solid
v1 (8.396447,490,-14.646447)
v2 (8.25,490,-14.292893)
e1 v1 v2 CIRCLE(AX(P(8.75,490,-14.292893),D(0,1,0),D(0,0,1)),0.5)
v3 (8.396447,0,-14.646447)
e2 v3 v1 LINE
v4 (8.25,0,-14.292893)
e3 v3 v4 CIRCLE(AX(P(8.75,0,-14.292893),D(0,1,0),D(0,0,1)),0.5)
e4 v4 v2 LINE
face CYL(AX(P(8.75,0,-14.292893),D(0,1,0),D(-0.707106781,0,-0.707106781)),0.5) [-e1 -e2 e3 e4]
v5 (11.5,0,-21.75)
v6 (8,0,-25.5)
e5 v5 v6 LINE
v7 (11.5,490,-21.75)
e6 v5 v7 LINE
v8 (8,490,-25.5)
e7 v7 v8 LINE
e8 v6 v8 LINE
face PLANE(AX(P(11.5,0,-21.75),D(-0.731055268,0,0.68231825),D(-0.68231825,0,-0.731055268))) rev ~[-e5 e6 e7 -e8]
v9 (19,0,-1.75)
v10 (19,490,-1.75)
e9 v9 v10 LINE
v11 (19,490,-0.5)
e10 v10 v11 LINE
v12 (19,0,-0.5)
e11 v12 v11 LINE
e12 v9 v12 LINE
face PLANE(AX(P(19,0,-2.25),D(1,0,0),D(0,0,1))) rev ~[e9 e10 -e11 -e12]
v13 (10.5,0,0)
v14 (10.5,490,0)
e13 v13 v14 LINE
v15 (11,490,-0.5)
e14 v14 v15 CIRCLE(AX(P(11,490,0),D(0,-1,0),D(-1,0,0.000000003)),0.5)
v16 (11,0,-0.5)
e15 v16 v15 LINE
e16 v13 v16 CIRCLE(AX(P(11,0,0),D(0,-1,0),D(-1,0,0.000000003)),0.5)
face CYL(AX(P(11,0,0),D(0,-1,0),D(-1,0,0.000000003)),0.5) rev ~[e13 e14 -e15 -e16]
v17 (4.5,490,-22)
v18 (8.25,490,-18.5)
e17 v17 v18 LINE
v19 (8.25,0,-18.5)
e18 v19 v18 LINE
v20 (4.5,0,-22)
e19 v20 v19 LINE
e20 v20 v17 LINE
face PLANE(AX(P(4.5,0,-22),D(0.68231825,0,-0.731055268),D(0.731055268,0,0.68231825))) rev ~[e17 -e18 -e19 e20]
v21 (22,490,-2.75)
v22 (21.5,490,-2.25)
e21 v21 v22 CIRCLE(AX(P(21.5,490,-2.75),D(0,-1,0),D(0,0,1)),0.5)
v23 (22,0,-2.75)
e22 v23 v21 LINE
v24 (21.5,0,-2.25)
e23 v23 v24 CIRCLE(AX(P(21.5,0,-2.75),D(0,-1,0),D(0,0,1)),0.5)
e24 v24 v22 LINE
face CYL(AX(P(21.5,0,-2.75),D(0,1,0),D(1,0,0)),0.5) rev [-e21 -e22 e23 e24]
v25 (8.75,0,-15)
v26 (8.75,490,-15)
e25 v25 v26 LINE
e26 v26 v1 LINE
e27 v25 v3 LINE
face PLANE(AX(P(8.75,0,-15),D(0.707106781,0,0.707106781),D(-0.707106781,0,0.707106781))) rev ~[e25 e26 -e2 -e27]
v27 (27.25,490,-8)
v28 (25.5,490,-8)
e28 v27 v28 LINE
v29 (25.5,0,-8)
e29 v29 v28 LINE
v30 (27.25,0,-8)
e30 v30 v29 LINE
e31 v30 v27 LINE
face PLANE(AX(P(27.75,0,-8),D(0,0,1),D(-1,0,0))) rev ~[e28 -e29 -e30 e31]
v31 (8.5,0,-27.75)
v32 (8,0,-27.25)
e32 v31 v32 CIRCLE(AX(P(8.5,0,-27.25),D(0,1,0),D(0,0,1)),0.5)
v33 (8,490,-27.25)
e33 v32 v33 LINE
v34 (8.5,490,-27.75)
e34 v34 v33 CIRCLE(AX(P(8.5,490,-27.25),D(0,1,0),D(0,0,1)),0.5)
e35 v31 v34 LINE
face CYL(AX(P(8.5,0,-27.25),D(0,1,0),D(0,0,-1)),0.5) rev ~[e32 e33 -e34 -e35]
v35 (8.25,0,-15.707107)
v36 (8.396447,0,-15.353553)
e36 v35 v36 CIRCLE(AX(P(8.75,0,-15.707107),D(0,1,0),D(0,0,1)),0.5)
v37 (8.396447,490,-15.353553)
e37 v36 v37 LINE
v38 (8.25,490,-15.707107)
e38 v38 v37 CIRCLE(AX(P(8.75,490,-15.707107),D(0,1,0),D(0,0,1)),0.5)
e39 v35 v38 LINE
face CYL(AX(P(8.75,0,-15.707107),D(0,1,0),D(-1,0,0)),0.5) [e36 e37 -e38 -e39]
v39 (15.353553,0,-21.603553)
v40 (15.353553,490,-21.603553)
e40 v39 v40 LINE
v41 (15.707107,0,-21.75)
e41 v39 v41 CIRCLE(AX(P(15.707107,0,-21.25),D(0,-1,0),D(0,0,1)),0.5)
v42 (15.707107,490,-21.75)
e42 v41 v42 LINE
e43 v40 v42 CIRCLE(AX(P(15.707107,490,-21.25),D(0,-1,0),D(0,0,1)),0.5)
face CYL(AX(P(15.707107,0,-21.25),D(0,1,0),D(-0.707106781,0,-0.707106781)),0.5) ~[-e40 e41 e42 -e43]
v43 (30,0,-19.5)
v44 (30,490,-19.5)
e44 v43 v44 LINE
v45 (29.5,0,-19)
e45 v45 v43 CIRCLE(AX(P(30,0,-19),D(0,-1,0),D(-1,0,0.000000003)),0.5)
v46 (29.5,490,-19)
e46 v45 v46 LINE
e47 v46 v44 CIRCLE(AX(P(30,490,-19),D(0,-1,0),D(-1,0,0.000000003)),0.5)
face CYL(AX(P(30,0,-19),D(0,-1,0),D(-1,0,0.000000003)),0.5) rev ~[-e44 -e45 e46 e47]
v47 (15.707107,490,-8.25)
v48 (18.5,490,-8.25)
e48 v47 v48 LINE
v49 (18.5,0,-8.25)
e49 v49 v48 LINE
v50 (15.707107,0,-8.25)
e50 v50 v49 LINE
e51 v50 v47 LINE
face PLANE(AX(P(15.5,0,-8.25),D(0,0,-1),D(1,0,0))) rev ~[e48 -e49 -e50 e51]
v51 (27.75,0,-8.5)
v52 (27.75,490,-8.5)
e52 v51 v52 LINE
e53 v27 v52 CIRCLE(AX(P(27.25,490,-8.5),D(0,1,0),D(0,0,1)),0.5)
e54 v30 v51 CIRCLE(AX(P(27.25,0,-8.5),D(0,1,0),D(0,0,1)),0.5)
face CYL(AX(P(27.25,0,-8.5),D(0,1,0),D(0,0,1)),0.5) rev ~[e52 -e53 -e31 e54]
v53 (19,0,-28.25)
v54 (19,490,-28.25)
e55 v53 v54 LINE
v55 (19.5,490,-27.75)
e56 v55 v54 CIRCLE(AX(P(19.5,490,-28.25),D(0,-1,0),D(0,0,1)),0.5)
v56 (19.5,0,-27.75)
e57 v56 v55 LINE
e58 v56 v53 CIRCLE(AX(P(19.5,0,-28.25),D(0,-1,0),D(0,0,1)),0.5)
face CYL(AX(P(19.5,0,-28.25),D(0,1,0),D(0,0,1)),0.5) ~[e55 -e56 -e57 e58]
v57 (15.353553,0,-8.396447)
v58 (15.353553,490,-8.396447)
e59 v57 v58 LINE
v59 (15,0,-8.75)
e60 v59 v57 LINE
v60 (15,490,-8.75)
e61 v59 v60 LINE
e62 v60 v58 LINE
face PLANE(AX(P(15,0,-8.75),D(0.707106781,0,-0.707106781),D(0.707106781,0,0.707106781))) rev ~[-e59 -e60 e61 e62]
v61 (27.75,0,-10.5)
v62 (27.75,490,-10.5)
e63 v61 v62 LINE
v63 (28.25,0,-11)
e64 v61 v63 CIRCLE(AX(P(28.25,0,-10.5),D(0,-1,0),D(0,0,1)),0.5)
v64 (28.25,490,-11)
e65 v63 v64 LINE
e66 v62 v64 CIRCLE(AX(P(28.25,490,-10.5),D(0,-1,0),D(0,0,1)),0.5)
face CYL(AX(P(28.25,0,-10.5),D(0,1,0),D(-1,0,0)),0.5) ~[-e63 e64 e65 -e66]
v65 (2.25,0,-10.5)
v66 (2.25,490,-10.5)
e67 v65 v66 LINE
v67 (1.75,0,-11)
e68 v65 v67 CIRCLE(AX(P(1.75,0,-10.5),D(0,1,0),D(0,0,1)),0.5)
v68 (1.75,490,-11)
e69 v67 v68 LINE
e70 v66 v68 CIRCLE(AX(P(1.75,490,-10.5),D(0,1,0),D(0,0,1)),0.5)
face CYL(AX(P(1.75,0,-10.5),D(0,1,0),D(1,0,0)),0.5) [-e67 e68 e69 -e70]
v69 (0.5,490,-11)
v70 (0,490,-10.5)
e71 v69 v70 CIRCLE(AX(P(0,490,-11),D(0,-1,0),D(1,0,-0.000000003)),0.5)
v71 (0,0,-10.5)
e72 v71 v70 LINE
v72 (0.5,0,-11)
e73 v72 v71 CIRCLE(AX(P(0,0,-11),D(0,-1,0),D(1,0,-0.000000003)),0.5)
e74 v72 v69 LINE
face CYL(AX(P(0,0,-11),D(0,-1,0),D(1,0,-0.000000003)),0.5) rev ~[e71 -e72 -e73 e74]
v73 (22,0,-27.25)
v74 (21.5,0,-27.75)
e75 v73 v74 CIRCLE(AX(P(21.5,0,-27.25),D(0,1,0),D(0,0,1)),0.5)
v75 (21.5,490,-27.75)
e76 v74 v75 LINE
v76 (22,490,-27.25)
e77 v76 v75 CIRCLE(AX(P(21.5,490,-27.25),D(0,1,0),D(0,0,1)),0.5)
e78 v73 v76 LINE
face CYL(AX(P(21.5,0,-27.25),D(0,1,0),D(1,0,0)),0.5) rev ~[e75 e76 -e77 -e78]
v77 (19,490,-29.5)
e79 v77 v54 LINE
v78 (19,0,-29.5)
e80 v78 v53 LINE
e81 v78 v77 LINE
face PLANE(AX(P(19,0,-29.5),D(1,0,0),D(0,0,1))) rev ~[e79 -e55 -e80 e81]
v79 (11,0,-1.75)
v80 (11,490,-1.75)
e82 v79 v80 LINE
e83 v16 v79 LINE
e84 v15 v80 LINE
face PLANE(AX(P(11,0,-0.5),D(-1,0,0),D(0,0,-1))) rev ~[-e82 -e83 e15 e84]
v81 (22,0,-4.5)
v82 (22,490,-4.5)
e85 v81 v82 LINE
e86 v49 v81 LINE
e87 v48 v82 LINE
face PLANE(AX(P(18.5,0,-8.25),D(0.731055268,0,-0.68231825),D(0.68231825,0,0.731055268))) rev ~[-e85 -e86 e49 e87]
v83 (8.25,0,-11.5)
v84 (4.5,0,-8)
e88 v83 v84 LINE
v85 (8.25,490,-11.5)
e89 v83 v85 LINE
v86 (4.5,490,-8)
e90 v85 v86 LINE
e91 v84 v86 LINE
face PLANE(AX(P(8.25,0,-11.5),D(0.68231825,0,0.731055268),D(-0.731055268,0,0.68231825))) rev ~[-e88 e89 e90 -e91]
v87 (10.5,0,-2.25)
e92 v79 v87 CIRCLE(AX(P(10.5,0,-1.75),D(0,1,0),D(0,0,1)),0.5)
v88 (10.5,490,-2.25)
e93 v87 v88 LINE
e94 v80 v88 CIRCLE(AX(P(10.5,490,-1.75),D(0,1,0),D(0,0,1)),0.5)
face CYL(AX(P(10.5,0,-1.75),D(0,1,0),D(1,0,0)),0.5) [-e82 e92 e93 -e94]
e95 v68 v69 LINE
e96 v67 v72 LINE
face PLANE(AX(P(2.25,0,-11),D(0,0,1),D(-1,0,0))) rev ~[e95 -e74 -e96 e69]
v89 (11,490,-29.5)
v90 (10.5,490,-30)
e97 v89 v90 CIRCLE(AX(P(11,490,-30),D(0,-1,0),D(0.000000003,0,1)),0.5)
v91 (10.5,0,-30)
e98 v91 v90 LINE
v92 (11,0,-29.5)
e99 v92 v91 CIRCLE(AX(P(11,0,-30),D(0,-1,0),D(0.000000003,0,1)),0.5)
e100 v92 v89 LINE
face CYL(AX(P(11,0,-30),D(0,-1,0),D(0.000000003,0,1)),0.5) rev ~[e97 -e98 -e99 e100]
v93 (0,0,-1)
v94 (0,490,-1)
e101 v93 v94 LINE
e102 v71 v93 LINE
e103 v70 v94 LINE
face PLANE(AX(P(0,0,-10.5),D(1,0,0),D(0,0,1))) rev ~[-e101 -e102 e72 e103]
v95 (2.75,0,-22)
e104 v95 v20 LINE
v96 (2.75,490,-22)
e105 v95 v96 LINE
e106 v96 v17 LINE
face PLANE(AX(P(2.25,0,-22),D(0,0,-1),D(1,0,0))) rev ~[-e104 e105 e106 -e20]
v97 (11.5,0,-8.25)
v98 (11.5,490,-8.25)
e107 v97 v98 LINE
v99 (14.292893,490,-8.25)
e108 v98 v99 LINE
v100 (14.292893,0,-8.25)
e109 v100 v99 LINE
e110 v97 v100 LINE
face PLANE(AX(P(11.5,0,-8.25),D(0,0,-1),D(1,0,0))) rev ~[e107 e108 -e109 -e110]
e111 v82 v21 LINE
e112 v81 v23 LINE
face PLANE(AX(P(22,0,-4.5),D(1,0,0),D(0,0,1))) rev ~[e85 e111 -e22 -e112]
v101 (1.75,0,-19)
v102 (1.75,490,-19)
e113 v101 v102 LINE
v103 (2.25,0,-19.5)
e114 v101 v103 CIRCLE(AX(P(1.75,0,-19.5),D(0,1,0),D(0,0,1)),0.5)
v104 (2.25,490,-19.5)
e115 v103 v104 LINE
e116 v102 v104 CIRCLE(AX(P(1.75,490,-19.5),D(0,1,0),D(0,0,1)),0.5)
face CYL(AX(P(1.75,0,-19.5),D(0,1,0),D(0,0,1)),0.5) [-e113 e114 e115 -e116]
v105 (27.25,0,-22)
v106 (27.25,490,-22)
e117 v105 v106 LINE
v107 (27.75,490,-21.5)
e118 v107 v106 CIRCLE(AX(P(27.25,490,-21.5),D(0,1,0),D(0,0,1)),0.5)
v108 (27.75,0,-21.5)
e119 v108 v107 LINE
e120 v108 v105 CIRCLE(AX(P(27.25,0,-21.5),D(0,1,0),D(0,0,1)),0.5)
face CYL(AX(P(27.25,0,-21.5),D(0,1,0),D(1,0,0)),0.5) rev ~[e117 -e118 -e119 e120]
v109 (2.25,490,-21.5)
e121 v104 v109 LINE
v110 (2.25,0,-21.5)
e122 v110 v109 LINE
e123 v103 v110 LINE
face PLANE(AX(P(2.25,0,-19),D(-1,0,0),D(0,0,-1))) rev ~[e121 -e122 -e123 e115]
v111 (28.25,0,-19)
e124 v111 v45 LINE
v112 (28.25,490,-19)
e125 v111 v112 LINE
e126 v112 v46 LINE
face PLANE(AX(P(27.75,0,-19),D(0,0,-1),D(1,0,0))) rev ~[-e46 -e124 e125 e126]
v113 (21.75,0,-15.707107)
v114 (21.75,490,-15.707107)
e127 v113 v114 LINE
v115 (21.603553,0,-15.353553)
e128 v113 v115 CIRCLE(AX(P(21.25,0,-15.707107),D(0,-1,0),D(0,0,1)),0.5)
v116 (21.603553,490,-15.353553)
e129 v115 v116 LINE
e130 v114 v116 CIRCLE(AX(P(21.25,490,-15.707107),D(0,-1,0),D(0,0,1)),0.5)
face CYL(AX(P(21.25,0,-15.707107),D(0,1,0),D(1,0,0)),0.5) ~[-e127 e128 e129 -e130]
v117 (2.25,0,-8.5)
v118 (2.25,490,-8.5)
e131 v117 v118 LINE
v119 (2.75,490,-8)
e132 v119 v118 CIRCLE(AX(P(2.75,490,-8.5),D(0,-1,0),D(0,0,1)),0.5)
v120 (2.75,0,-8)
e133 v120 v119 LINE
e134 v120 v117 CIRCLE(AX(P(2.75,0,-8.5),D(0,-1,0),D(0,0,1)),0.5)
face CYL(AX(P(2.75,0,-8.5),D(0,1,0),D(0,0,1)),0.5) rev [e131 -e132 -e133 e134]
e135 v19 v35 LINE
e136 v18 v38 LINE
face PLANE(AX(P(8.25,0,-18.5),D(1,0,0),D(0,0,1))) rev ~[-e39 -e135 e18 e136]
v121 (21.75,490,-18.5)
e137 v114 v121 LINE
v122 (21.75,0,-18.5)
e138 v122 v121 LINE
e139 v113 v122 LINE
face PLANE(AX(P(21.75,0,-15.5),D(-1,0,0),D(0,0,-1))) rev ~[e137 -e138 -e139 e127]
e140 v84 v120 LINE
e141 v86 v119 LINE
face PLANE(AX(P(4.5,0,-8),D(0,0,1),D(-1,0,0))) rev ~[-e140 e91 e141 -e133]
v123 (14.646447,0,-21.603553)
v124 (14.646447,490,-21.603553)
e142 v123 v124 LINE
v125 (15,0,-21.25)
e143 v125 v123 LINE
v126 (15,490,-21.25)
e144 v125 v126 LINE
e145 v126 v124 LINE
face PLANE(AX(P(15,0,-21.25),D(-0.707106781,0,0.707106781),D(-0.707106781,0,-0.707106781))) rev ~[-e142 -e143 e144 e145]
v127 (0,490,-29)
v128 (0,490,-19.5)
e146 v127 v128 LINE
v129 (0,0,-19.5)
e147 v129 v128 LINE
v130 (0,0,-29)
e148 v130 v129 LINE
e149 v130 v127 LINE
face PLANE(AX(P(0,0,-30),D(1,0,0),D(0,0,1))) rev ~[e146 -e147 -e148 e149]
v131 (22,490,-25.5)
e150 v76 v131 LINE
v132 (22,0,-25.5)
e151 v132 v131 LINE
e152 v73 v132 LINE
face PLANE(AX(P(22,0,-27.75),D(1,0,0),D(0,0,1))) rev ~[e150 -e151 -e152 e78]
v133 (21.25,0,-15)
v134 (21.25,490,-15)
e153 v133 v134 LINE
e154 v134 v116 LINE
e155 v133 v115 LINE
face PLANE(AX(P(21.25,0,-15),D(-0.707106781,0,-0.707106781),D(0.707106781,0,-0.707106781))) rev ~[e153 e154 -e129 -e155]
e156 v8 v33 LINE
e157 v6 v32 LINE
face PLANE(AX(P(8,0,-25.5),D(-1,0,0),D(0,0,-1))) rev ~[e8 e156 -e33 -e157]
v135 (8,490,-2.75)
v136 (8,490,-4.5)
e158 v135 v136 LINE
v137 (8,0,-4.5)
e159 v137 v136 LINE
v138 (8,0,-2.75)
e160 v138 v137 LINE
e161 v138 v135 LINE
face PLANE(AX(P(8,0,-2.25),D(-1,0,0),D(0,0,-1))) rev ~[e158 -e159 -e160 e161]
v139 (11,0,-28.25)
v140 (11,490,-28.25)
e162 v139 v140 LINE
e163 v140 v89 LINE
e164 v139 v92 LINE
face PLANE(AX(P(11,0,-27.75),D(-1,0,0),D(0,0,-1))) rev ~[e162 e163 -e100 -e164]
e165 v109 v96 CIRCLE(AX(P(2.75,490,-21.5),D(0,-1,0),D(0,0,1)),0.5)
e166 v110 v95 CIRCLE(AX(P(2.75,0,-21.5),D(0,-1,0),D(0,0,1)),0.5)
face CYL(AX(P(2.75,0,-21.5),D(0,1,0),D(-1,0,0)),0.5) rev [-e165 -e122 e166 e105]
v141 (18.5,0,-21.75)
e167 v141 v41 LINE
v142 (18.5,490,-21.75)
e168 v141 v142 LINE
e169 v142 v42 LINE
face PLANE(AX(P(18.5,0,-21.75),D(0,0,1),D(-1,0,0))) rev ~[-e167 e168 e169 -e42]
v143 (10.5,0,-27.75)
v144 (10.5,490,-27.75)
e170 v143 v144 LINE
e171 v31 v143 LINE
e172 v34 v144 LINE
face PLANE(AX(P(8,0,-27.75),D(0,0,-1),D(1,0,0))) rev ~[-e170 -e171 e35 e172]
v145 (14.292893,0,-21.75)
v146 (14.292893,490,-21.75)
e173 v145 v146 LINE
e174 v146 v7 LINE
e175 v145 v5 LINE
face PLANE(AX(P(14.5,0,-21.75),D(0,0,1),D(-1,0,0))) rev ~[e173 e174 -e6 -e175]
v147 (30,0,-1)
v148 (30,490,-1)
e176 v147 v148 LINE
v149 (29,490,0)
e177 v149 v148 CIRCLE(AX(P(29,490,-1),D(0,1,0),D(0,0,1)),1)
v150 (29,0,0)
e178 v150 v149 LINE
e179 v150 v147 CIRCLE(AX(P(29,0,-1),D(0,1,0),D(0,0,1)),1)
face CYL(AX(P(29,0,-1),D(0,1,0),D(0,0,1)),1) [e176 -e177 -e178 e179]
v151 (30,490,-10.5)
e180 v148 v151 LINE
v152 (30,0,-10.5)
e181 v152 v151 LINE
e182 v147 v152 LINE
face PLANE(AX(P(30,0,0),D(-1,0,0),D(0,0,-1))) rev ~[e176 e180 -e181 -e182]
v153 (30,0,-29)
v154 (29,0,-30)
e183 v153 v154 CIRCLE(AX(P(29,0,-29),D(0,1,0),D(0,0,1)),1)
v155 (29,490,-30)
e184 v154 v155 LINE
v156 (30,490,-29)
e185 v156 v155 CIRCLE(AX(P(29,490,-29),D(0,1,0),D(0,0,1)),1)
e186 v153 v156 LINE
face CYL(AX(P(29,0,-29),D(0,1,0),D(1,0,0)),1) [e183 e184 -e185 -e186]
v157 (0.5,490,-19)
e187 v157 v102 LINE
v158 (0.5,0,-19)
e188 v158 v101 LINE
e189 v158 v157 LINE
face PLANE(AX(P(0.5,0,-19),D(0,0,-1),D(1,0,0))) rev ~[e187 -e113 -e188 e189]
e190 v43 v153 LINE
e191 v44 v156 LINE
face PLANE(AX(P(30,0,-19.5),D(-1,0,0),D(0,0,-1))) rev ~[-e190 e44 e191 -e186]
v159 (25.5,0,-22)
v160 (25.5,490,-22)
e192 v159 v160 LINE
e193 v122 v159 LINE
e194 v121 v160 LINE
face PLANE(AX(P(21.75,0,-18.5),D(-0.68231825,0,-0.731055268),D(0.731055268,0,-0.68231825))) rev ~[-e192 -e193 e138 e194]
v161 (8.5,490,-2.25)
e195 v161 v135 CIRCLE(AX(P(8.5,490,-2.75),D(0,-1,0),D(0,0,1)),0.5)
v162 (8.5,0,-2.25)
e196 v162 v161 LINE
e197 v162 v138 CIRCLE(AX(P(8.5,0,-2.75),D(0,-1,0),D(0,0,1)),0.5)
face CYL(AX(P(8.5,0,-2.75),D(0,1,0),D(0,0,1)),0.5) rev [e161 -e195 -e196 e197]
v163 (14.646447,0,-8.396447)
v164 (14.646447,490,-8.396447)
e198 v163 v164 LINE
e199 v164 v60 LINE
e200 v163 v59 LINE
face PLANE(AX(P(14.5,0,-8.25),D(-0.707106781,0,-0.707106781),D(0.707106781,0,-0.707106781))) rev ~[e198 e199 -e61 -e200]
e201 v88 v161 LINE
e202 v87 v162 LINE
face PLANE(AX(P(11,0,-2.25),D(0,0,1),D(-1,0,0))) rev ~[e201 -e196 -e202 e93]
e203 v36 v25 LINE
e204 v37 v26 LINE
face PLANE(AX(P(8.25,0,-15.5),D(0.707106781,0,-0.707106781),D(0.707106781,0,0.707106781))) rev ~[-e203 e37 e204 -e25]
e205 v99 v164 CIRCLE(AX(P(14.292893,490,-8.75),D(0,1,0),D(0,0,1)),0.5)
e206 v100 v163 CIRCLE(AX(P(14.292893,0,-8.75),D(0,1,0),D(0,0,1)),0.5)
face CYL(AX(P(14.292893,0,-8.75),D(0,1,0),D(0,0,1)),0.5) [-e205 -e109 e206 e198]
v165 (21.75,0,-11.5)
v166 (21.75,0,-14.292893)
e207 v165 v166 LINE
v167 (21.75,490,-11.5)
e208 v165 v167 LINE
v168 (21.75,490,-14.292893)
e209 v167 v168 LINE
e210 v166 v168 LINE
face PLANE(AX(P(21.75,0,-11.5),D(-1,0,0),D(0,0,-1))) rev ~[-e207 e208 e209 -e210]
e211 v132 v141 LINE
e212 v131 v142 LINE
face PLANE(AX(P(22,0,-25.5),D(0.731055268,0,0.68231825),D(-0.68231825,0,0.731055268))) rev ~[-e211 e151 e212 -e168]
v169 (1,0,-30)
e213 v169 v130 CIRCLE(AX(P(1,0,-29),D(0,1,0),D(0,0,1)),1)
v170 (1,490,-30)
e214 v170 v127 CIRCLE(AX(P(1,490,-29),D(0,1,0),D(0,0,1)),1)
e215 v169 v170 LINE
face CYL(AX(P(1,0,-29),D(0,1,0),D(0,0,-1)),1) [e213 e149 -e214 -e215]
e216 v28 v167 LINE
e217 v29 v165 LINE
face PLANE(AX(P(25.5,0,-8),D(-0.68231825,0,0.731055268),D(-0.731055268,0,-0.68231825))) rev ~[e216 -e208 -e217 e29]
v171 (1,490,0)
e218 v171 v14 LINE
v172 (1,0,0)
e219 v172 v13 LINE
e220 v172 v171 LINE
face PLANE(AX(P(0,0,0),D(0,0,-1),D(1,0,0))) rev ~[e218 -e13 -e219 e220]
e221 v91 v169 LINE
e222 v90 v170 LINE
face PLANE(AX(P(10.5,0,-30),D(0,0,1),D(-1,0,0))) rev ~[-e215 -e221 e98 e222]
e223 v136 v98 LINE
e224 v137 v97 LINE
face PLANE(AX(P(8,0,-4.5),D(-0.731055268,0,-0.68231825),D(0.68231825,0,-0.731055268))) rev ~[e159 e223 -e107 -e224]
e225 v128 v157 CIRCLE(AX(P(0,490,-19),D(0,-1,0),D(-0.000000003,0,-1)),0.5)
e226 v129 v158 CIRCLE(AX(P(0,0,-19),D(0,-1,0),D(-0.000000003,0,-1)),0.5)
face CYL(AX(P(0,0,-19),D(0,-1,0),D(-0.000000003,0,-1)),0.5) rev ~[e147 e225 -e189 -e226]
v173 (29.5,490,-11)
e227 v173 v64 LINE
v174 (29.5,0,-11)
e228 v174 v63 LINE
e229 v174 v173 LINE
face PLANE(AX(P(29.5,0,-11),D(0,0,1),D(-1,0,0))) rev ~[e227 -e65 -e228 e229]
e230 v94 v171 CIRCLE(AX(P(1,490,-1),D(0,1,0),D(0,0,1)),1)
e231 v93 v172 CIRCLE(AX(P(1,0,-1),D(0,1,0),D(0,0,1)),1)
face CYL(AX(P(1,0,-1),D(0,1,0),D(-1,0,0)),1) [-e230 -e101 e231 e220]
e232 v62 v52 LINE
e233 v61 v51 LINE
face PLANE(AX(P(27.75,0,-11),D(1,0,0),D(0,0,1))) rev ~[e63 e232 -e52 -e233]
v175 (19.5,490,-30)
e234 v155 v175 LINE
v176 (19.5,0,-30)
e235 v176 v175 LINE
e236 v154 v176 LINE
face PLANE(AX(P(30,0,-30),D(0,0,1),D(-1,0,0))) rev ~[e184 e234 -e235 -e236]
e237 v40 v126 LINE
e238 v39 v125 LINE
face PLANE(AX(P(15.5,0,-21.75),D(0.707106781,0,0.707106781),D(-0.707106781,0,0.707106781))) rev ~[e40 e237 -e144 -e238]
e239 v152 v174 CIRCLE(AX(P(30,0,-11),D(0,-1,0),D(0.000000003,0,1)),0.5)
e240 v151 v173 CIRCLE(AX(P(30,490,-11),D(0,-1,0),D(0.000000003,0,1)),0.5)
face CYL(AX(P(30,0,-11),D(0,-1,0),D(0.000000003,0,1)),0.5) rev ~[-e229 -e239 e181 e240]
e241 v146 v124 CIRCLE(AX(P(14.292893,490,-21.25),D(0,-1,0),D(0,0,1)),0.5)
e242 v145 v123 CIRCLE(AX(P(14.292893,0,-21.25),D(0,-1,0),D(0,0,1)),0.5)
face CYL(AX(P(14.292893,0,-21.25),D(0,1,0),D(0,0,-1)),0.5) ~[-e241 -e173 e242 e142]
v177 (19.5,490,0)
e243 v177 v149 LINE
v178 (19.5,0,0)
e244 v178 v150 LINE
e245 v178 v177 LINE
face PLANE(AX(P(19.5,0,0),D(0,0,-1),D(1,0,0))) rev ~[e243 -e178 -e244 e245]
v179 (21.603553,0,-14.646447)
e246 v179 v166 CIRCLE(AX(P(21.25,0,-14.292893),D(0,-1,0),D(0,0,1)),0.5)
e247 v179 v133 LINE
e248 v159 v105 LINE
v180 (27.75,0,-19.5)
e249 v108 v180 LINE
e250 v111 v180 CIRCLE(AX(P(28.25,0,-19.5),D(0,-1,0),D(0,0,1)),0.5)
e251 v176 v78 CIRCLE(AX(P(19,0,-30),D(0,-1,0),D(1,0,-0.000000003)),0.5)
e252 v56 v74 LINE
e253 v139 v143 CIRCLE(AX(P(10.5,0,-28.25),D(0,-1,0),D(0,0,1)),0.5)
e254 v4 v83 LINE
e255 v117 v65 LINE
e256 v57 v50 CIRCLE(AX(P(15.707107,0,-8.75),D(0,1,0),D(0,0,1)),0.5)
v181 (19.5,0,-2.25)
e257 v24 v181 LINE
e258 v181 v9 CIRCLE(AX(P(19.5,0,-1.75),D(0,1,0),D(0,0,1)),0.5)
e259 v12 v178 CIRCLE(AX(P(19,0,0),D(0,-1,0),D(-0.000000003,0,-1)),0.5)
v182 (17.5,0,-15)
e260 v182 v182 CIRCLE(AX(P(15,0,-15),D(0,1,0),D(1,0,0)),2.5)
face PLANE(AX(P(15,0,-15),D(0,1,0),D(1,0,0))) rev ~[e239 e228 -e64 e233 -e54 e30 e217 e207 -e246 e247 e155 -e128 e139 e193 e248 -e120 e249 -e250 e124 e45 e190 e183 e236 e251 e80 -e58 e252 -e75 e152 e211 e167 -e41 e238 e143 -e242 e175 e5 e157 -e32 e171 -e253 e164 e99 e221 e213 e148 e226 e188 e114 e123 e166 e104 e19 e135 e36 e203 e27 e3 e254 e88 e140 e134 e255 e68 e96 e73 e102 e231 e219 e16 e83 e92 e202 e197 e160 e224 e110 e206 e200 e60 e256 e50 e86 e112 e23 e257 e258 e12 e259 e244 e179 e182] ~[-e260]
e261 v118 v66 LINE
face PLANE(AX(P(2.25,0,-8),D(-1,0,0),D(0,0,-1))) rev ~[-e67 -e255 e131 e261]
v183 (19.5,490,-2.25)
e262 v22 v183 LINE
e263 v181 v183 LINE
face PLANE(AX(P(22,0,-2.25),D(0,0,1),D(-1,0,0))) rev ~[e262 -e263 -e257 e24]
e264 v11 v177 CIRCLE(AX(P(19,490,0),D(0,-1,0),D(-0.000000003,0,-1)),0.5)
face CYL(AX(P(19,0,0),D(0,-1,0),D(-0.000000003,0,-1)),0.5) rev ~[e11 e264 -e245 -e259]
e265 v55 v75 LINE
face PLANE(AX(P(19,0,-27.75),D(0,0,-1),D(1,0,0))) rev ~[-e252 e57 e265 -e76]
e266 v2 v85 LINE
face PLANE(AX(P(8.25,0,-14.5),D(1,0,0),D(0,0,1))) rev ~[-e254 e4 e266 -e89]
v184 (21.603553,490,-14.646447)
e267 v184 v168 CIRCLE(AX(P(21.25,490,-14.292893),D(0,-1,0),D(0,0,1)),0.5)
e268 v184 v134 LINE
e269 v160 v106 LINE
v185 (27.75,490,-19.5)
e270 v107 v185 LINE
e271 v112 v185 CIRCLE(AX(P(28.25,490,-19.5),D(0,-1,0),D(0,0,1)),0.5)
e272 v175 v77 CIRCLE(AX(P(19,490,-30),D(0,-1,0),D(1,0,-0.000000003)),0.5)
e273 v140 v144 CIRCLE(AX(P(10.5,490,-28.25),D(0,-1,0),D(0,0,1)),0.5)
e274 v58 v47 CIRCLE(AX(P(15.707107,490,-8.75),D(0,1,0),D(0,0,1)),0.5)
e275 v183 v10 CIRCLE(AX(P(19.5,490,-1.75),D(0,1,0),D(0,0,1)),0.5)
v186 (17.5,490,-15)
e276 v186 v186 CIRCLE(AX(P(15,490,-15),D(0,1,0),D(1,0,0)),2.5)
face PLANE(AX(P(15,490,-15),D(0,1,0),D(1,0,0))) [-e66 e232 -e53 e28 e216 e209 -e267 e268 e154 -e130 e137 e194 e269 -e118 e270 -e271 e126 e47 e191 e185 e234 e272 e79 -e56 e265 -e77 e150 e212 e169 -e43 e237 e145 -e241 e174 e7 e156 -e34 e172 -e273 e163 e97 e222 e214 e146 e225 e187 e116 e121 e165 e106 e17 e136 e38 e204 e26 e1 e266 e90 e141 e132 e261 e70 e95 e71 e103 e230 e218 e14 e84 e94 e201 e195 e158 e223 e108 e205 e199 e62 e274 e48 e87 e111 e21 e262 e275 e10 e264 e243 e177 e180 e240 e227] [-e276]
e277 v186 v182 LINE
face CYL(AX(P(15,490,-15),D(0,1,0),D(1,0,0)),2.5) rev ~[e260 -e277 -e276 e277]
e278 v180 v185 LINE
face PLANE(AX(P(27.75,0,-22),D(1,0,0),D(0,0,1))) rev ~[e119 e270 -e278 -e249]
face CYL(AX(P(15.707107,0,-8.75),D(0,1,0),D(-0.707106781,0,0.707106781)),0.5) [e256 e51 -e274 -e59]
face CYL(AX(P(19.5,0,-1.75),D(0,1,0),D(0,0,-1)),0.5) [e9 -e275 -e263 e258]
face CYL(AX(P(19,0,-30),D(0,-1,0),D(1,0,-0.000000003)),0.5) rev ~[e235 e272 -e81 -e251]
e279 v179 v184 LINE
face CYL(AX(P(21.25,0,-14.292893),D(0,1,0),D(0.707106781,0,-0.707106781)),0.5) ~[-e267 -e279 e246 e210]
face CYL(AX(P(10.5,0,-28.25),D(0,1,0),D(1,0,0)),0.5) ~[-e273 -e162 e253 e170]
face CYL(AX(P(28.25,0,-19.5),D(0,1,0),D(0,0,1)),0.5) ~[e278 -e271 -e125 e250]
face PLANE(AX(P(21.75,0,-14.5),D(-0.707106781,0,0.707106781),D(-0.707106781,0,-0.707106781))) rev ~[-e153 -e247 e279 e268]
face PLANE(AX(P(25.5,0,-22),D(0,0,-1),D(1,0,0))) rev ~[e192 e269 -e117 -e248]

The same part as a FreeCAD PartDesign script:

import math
import FreeCAD as App
import Part
import Sketcher
from FreeCAD import Vector


def edges_at(feature, points):
    """Names of the edges that pass closest to the given points."""
    edges = feature.Shape.Edges
    near = lambda p: min(range(len(edges)), key=lambda i: edges[i].distToShape(Part.Vertex(*p))[0])
    return sorted({f"Edge{near(p) + 1}" for p in points})

doc = App.newDocument("Part")
params = doc.addObject("Spreadsheet::Sheet", "Params")
for row, (alias, value) in enumerate([
    ("sketch1_radius", "0.5 mm"),
    ("sketch1_width", "3 mm"),
    ("sketch1_width2", "10.5 mm"),
    ("sketch1_width3", "1.75 mm"),
    ("sketch1_width4", "2.25 mm"),
    ("pad1_length", "490 mm"),
    ("fillet_radius", "1 mm"),
    ("sketch2_diameter", "5 mm"),
    ("fillet2_radius", "0.5 mm"),
], start=1):
    params.set(f"A{row}", alias)
    params.set(f"B{row}", "=" + value)
    params.setAlias(f"B{row}", alias)

body = doc.addObject("PartDesign::Body", "Body")

sketch1 = body.newObject("Sketcher::SketchObject", "Sketch")
sketch1.AttachmentSupport = (doc.getObject("XZ_Plane"), [""])
sketch1.MapMode = "FlatFace"
sketch1.addGeometry(Part.LineSegment(Vector(11, -27.75, 0), Vector(11, -29.5, 0)), False)
sketch1.addGeometry(Part.ArcOfCircle(Part.Circle(Vector(11, -30, 0), Vector(0, 0, 1), 0.5), math.radians(90), math.radians(180)), False)
sketch1.addGeometry(Part.LineSegment(Vector(10.5, -30, 0), Vector(0, -30, 0)), False)
sketch1.addGeometry(Part.LineSegment(Vector(0, -30, 0), Vector(0, -19.5, 0)), False)
sketch1.addGeometry(Part.ArcOfCircle(Part.Circle(Vector(0, -19, 0), Vector(0, 0, 1), 0.5), math.radians(-90), math.radians(0)), False)
sketch1.addGeometry(Part.LineSegment(Vector(0.5, -19, 0), Vector(2.25, -19, 0)), False)
sketch1.addGeometry(Part.LineSegment(Vector(2.25, -19, 0), Vector(2.25, -22, 0)), False)
sketch1.addGeometry(Part.LineSegment(Vector(2.25, -22, 0), Vector(4.5, -22, 0)), False)
sketch1.addGeometry(Part.LineSegment(Vector(4.5, -22, 0), Vector(8.25, -18.5, 0)), False)
sketch1.addGeometry(Part.LineSegment(Vector(8.25, -18.5, 0), Vector(8.25, -15.5, 0)), False)
sketch1.addGeometry(Part.LineSegment(Vector(8.25, -15.5, 0), Vector(8.75, -15, 0)), False)
sketch1.addGeometry(Part.LineSegment(Vector(8.75, -15, 0), Vector(8.25, -14.5, 0)), False)
sketch1.addGeometry(Part.LineSegment(Vector(8.25, -14.5, 0), Vector(8.25, -11.5, 0)), False)
sketch1.addGeometry(Part.LineSegment(Vector(8.25, -11.5, 0), Vector(4.5, -8, 0)), False)
sketch1.addGeometry(Part.LineSegment(Vector(4.5, -8, 0), Vector(2.25, -8, 0)), False)
sketch1.addGeometry(Part.LineSegment(Vector(2.25, -8, 0), Vector(2.25, -11, 0)), False)
sketch1.addGeometry(Part.LineSegment(Vector(2.25, -11, 0), Vector(0.5, -11, 0)), False)
sketch1.addGeometry(Part.ArcOfCircle(Part.Circle(Vector(0, -11, 0), Vector(0, 0, 1), 0.5), math.radians(0), math.radians(90)), False)
sketch1.addGeometry(Part.LineSegment(Vector(0, -10.5, 0), Vector(0, 0, 0)), False)
sketch1.addGeometry(Part.LineSegment(Vector(0, 0, 0), Vector(10.5, 0, 0)), False)
sketch1.addGeometry(Part.ArcOfCircle(Part.Circle(Vector(11, 0, 0), Vector(0, 0, 1), 0.5), math.radians(180), math.radians(270)), False)
sketch1.addGeometry(Part.LineSegment(Vector(11, -0.5, 0), Vector(11, -2.25, 0)), False)
sketch1.addGeometry(Part.LineSegment(Vector(11, -2.25, 0), Vector(8, -2.25, 0)), False)
sketch1.addGeometry(Part.LineSegment(Vector(8, -2.25, 0), Vector(8, -4.5, 0)), False)
sketch1.addGeometry(Part.LineSegment(Vector(8, -4.5, 0), Vector(11.5, -8.25, 0)), False)
sketch1.addGeometry(Part.LineSegment(Vector(11.5, -8.25, 0), Vector(14.5, -8.25, 0)), False)
sketch1.addGeometry(Part.LineSegment(Vector(14.5, -8.25, 0), Vector(15, -8.75, 0)), False)
sketch1.addGeometry(Part.LineSegment(Vector(15, -8.75, 0), Vector(15.5, -8.25, 0)), False)
sketch1.addGeometry(Part.LineSegment(Vector(15.5, -8.25, 0), Vector(18.5, -8.25, 0)), False)
sketch1.addGeometry(Part.LineSegment(Vector(18.5, -8.25, 0), Vector(22, -4.5, 0)), False)
sketch1.addGeometry(Part.LineSegment(Vector(22, -4.5, 0), Vector(22, -2.25, 0)), False)
sketch1.addGeometry(Part.LineSegment(Vector(22, -2.25, 0), Vector(19, -2.25, 0)), False)
sketch1.addGeometry(Part.LineSegment(Vector(19, -2.25, 0), Vector(19, -0.5, 0)), False)
sketch1.addGeometry(Part.ArcOfCircle(Part.Circle(Vector(19, 0, 0), Vector(0, 0, 1), 0.5), math.radians(-90), math.radians(0)), False)
sketch1.addGeometry(Part.LineSegment(Vector(19.5, 0, 0), Vector(30, 0, 0)), False)
sketch1.addGeometry(Part.LineSegment(Vector(30, 0, 0), Vector(30, -10.5, 0)), False)
sketch1.addGeometry(Part.ArcOfCircle(Part.Circle(Vector(30, -11, 0), Vector(0, 0, 1), 0.5), math.radians(90), math.radians(180)), False)
sketch1.addGeometry(Part.LineSegment(Vector(29.5, -11, 0), Vector(27.75, -11, 0)), False)
sketch1.addGeometry(Part.LineSegment(Vector(27.75, -11, 0), Vector(27.75, -8, 0)), False)
sketch1.addGeometry(Part.LineSegment(Vector(27.75, -8, 0), Vector(25.5, -8, 0)), False)
sketch1.addGeometry(Part.LineSegment(Vector(25.5, -8, 0), Vector(21.75, -11.5, 0)), False)
sketch1.addGeometry(Part.LineSegment(Vector(21.75, -11.5, 0), Vector(21.75, -14.5, 0)), False)
sketch1.addGeometry(Part.LineSegment(Vector(21.75, -14.5, 0), Vector(21.25, -15, 0)), False)
sketch1.addGeometry(Part.LineSegment(Vector(21.25, -15, 0), Vector(21.75, -15.5, 0)), False)
sketch1.addGeometry(Part.LineSegment(Vector(21.75, -15.5, 0), Vector(21.75, -18.5, 0)), False)
sketch1.addGeometry(Part.LineSegment(Vector(21.75, -18.5, 0), Vector(25.5, -22, 0)), False)
sketch1.addGeometry(Part.LineSegment(Vector(25.5, -22, 0), Vector(27.75, -22, 0)), False)
sketch1.addGeometry(Part.LineSegment(Vector(27.75, -22, 0), Vector(27.75, -19, 0)), False)
sketch1.addGeometry(Part.LineSegment(Vector(27.75, -19, 0), Vector(29.5, -19, 0)), False)
sketch1.addGeometry(Part.ArcOfCircle(Part.Circle(Vector(30, -19, 0), Vector(0, 0, 1), 0.5), math.radians(180), math.radians(270)), False)
sketch1.addGeometry(Part.LineSegment(Vector(30, -19.5, 0), Vector(30, -30, 0)), False)
sketch1.addGeometry(Part.LineSegment(Vector(30, -30, 0), Vector(19.5, -30, 0)), False)
sketch1.addGeometry(Part.ArcOfCircle(Part.Circle(Vector(19, -30, 0), Vector(0, 0, 1), 0.5), math.radians(0), math.radians(90)), False)
sketch1.addGeometry(Part.LineSegment(Vector(19, -29.5, 0), Vector(19, -27.75, 0)), False)
sketch1.addGeometry(Part.LineSegment(Vector(19, -27.75, 0), Vector(22, -27.75, 0)), False)
sketch1.addGeometry(Part.LineSegment(Vector(22, -27.75, 0), Vector(22, -25.5, 0)), False)
sketch1.addGeometry(Part.LineSegment(Vector(22, -25.5, 0), Vector(18.5, -21.75, 0)), False)
sketch1.addGeometry(Part.LineSegment(Vector(18.5, -21.75, 0), Vector(15.5, -21.75, 0)), False)
sketch1.addGeometry(Part.LineSegment(Vector(15.5, -21.75, 0), Vector(15, -21.25, 0)), False)
sketch1.addGeometry(Part.LineSegment(Vector(15, -21.25, 0), Vector(14.5, -21.75, 0)), False)
sketch1.addGeometry(Part.LineSegment(Vector(14.5, -21.75, 0), Vector(11.5, -21.75, 0)), False)
sketch1.addGeometry(Part.LineSegment(Vector(11.5, -21.75, 0), Vector(8, -25.5, 0)), False)
sketch1.addGeometry(Part.LineSegment(Vector(8, -25.5, 0), Vector(8, -27.75, 0)), False)
sketch1.addGeometry(Part.LineSegment(Vector(8, -27.75, 0), Vector(11, -27.75, 0)), False)
sketch1.addConstraint(Sketcher.Constraint("Coincident", 0, 2, 1, 1))
sketch1.addConstraint(Sketcher.Constraint("Coincident", 1, 2, 2, 1))
sketch1.addConstraint(Sketcher.Constraint("Coincident", 2, 2, 3, 1))
sketch1.addConstraint(Sketcher.Constraint("Coincident", 3, 2, 4, 1))
sketch1.addConstraint(Sketcher.Constraint("Coincident", 4, 2, 5, 1))
sketch1.addConstraint(Sketcher.Constraint("Coincident", 5, 2, 6, 1))
sketch1.addConstraint(Sketcher.Constraint("Coincident", 6, 2, 7, 1))
sketch1.addConstraint(Sketcher.Constraint("Coincident", 7, 2, 8, 1))
sketch1.addConstraint(Sketcher.Constraint("Coincident", 8, 2, 9, 1))
sketch1.addConstraint(Sketcher.Constraint("Coincident", 9, 2, 10, 1))
sketch1.addConstraint(Sketcher.Constraint("Coincident", 10, 2, 11, 1))
sketch1.addConstraint(Sketcher.Constraint("Coincident", 11, 2, 12, 1))
sketch1.addConstraint(Sketcher.Constraint("Coincident", 12, 2, 13, 1))
sketch1.addConstraint(Sketcher.Constraint("Coincident", 13, 2, 14, 1))
sketch1.addConstraint(Sketcher.Constraint("Coincident", 14, 2, 15, 1))
sketch1.addConstraint(Sketcher.Constraint("Coincident", 15, 2, 16, 1))
sketch1.addConstraint(Sketcher.Constraint("Coincident", 16, 2, 17, 1))
sketch1.addConstraint(Sketcher.Constraint("Coincident", 17, 2, 18, 1))
sketch1.addConstraint(Sketcher.Constraint("Coincident", 18, 2, 19, 1))
sketch1.addConstraint(Sketcher.Constraint("Coincident", 19, 2, 20, 1))
sketch1.addConstraint(Sketcher.Constraint("Coincident", 20, 2, 21, 1))
sketch1.addConstraint(Sketcher.Constraint("Coincident", 21, 2, 22, 1))
sketch1.addConstraint(Sketcher.Constraint("Coincident", 22, 2, 23, 1))
sketch1.addConstraint(Sketcher.Constraint("Coincident", 23, 2, 24, 1))
sketch1.addConstraint(Sketcher.Constraint("Coincident", 24, 2, 25, 1))
sketch1.addConstraint(Sketcher.Constraint("Coincident", 25, 2, 26, 1))
sketch1.addConstraint(Sketcher.Constraint("Coincident", 26, 2, 27, 1))
sketch1.addConstraint(Sketcher.Constraint("Coincident", 27, 2, 28, 1))
sketch1.addConstraint(Sketcher.Constraint("Coincident", 28, 2, 29, 1))
sketch1.addConstraint(Sketcher.Constraint("Coincident", 29, 2, 30, 1))
sketch1.addConstraint(Sketcher.Constraint("Coincident", 30, 2, 31, 1))
sketch1.addConstraint(Sketcher.Constraint("Coincident", 31, 2, 32, 1))
sketch1.addConstraint(Sketcher.Constraint("Coincident", 32, 2, 33, 1))
sketch1.addConstraint(Sketcher.Constraint("Coincident", 33, 2, 34, 1))
sketch1.addConstraint(Sketcher.Constraint("Coincident", 34, 2, 35, 1))
sketch1.addConstraint(Sketcher.Constraint("Coincident", 35, 2, 36, 1))
sketch1.addConstraint(Sketcher.Constraint("Coincident", 36, 2, 37, 1))
sketch1.addConstraint(Sketcher.Constraint("Coincident", 37, 2, 38, 1))
sketch1.addConstraint(Sketcher.Constraint("Coincident", 38, 2, 39, 1))
sketch1.addConstraint(Sketcher.Constraint("Coincident", 39, 2, 40, 1))
sketch1.addConstraint(Sketcher.Constraint("Coincident", 40, 2, 41, 1))
sketch1.addConstraint(Sketcher.Constraint("Coincident", 41, 2, 42, 1))
sketch1.addConstraint(Sketcher.Constraint("Coincident", 42, 2, 43, 1))
sketch1.addConstraint(Sketcher.Constraint("Coincident", 43, 2, 44, 1))
sketch1.addConstraint(Sketcher.Constraint("Coincident", 44, 2, 45, 1))
sketch1.addConstraint(Sketcher.Constraint("Coincident", 45, 2, 46, 1))
sketch1.addConstraint(Sketcher.Constraint("Coincident", 46, 2, 47, 1))
sketch1.addConstraint(Sketcher.Constraint("Coincident", 47, 2, 48, 1))
sketch1.addConstraint(Sketcher.Constraint("Coincident", 48, 2, 49, 1))
sketch1.addConstraint(Sketcher.Constraint("Coincident", 49, 2, 50, 1))
sketch1.addConstraint(Sketcher.Constraint("Coincident", 50, 2, 51, 1))
sketch1.addConstraint(Sketcher.Constraint("Coincident", 51, 2, 52, 1))
sketch1.addConstraint(Sketcher.Constraint("Coincident", 52, 2, 53, 1))
sketch1.addConstraint(Sketcher.Constraint("Coincident", 53, 2, 54, 1))
sketch1.addConstraint(Sketcher.Constraint("Coincident", 54, 2, 55, 1))
sketch1.addConstraint(Sketcher.Constraint("Coincident", 55, 2, 56, 1))
sketch1.addConstraint(Sketcher.Constraint("Coincident", 56, 2, 57, 1))
sketch1.addConstraint(Sketcher.Constraint("Coincident", 57, 2, 58, 1))
sketch1.addConstraint(Sketcher.Constraint("Coincident", 58, 2, 59, 1))
sketch1.addConstraint(Sketcher.Constraint("Coincident", 59, 2, 60, 1))
sketch1.addConstraint(Sketcher.Constraint("Coincident", 60, 2, 61, 1))
sketch1.addConstraint(Sketcher.Constraint("Coincident", 61, 2, 62, 1))
sketch1.addConstraint(Sketcher.Constraint("Coincident", 62, 2, 63, 1))
sketch1.addConstraint(Sketcher.Constraint("Coincident", 63, 2, 0, 1))
sketch1.addConstraint(Sketcher.Constraint("Vertical", 0))
sketch1.addConstraint(Sketcher.Constraint("Horizontal", 2))
sketch1.addConstraint(Sketcher.Constraint("Vertical", 3))
sketch1.addConstraint(Sketcher.Constraint("Horizontal", 5))
sketch1.addConstraint(Sketcher.Constraint("Vertical", 6))
sketch1.addConstraint(Sketcher.Constraint("Horizontal", 7))
sketch1.addConstraint(Sketcher.Constraint("Vertical", 9))
sketch1.addConstraint(Sketcher.Constraint("Vertical", 12))
sketch1.addConstraint(Sketcher.Constraint("Horizontal", 14))
sketch1.addConstraint(Sketcher.Constraint("Vertical", 15))
sketch1.addConstraint(Sketcher.Constraint("Horizontal", 16))
sketch1.addConstraint(Sketcher.Constraint("Vertical", 18))
sketch1.addConstraint(Sketcher.Constraint("Horizontal", 19))
sketch1.addConstraint(Sketcher.Constraint("Vertical", 21))
sketch1.addConstraint(Sketcher.Constraint("Horizontal", 22))
sketch1.addConstraint(Sketcher.Constraint("Vertical", 23))
sketch1.addConstraint(Sketcher.Constraint("Horizontal", 25))
sketch1.addConstraint(Sketcher.Constraint("Horizontal", 28))
sketch1.addConstraint(Sketcher.Constraint("Vertical", 30))
sketch1.addConstraint(Sketcher.Constraint("Horizontal", 31))
sketch1.addConstraint(Sketcher.Constraint("Vertical", 32))
sketch1.addConstraint(Sketcher.Constraint("Horizontal", 34))
sketch1.addConstraint(Sketcher.Constraint("Vertical", 35))
sketch1.addConstraint(Sketcher.Constraint("Horizontal", 37))
sketch1.addConstraint(Sketcher.Constraint("Vertical", 38))
sketch1.addConstraint(Sketcher.Constraint("Horizontal", 39))
sketch1.addConstraint(Sketcher.Constraint("Vertical", 41))
sketch1.addConstraint(Sketcher.Constraint("Vertical", 44))
sketch1.addConstraint(Sketcher.Constraint("Horizontal", 46))
sketch1.addConstraint(Sketcher.Constraint("Vertical", 47))
sketch1.addConstraint(Sketcher.Constraint("Horizontal", 48))
sketch1.addConstraint(Sketcher.Constraint("Vertical", 50))
sketch1.addConstraint(Sketcher.Constraint("Horizontal", 51))
sketch1.addConstraint(Sketcher.Constraint("Vertical", 53))
sketch1.addConstraint(Sketcher.Constraint("Horizontal", 54))
sketch1.addConstraint(Sketcher.Constraint("Vertical", 55))
sketch1.addConstraint(Sketcher.Constraint("Horizontal", 57))
sketch1.addConstraint(Sketcher.Constraint("Horizontal", 60))
sketch1.addConstraint(Sketcher.Constraint("Vertical", 62))
sketch1.addConstraint(Sketcher.Constraint("Horizontal", 63))
sketch1.addConstraint(Sketcher.Constraint("Coincident", 18, 2, -1, 1))
sketch1.addConstraint(Sketcher.Constraint("Equal", 1, 4))
sketch1.addConstraint(Sketcher.Constraint("Equal", 4, 17))
sketch1.addConstraint(Sketcher.Constraint("Equal", 17, 20))
sketch1.addConstraint(Sketcher.Constraint("Equal", 20, 33))
sketch1.addConstraint(Sketcher.Constraint("Equal", 33, 36))
sketch1.addConstraint(Sketcher.Constraint("Equal", 36, 49))
sketch1.addConstraint(Sketcher.Constraint("Equal", 49, 52))
sketch1.addConstraint(Sketcher.Constraint("PointOnObject", 4, 3, -2))
sketch1.addConstraint(Sketcher.Constraint("PointOnObject", 17, 3, -2))
sketch1.addConstraint(Sketcher.Constraint("PointOnObject", 20, 3, -1))
sketch1.addConstraint(Sketcher.Constraint("PointOnObject", 33, 3, -1))
sketch1.addConstraint(Sketcher.Constraint("PointOnObject", 2, 2, -2))
sketch1.addConstraint(Sketcher.Constraint("PointOnObject", 33, 2, -1))
sketch1.addConstraint(Sketcher.Constraint("Perpendicular", 10, 11))
sketch1.addConstraint(Sketcher.Constraint("Perpendicular", 8, 24))
sketch1.addConstraint(Sketcher.Constraint("Parallel", 11, 26))
sketch1.addConstraint(Sketcher.Constraint("Perpendicular", 26, 27))
sketch1.addConstraint(Sketcher.Constraint("Perpendicular", 13, 29))
sketch1.addConstraint(Sketcher.Constraint("Perpendicular", 24, 40))
sketch1.addConstraint(Sketcher.Constraint("Parallel", 27, 42))
sketch1.addConstraint(Sketcher.Constraint("Perpendicular", 42, 43))
sketch1.addConstraint(Sketcher.Constraint("Perpendicular", 29, 45))
sketch1.addConstraint(Sketcher.Constraint("Perpendicular", 40, 56))
sketch1.addConstraint(Sketcher.Constraint("Parallel", 43, 58))
sketch1.addConstraint(Sketcher.Constraint("Perpendicular", 58, 59))
sketch1.addConstraint(Sketcher.Constraint("Perpendicular", 45, 61))
sketch1.addConstraint(Sketcher.Constraint("Horizontal", 17, 3, 36, 3))
sketch1.addConstraint(Sketcher.Constraint("Horizontal", 4, 3, 49, 3))
sketch1.addConstraint(Sketcher.Constraint("Horizontal", 1, 3, 52, 3))
sketch1.addConstraint(Sketcher.Constraint("Horizontal", 52, 3, 1, 2))
sketch1.addConstraint(Sketcher.Constraint("Horizontal", 49, 3, 4, 2))
sketch1.addConstraint(Sketcher.Constraint("Horizontal", 36, 3, 15, 2))
sketch1.addConstraint(Sketcher.Constraint("Horizontal", 25, 2, 27, 2))
sketch1.addConstraint(Sketcher.Constraint("Horizontal", 23, 2, 29, 2))
sketch1.addConstraint(Sketcher.Constraint("Horizontal", 22, 2, 30, 2))
sketch1.addConstraint(Sketcher.Constraint("Horizontal", 16, 2, 36, 2))
sketch1.addConstraint(Sketcher.Constraint("Horizontal", 14, 2, 38, 2))
sketch1.addConstraint(Sketcher.Constraint("Horizontal", 12, 2, 40, 2))
sketch1.addConstraint(Sketcher.Constraint("Horizontal", 11, 2, 41, 2))
sketch1.addConstraint(Sketcher.Constraint("Horizontal", 10, 2, 42, 2))
sketch1.addConstraint(Sketcher.Constraint("Horizontal", 9, 2, 43, 2))
sketch1.addConstraint(Sketcher.Constraint("Horizontal", 8, 2, 44, 2))
sketch1.addConstraint(Sketcher.Constraint("Horizontal", 7, 2, 45, 2))
sketch1.addConstraint(Sketcher.Constraint("Horizontal", 5, 2, 47, 2))
sketch1.addConstraint(Sketcher.Constraint("Horizontal", 2, 2, 50, 2))
sketch1.addConstraint(Sketcher.Constraint("Horizontal", 57, 2, 59, 2))
sketch1.addConstraint(Sketcher.Constraint("Horizontal", 55, 2, 61, 2))
sketch1.addConstraint(Sketcher.Constraint("Horizontal", 54, 2, 62, 2))
sketch1.addConstraint(Sketcher.Constraint("Vertical", 1, 3, 20, 3))
sketch1.addConstraint(Sketcher.Constraint("Vertical", 36, 3, 49, 3))
sketch1.addConstraint(Sketcher.Constraint("Vertical", 33, 3, 52, 3))
sketch1.addConstraint(Sketcher.Constraint("Vertical", 20, 3, 0, 2))
sketch1.addConstraint(Sketcher.Constraint("Vertical", 9, 2, 11, 2))
sketch1.addConstraint(Sketcher.Constraint("Vertical", 7, 2, 13, 2))
sketch1.addConstraint(Sketcher.Constraint("Vertical", 6, 2, 14, 2))
sketch1.addConstraint(Sketcher.Constraint("Vertical", 0, 2, 20, 2))
sketch1.addConstraint(Sketcher.Constraint("Vertical", 52, 3, 31, 2))
sketch1.addConstraint(Sketcher.Constraint("Vertical", 49, 3, 34, 2))
sketch1.addConstraint(Sketcher.Constraint("Vertical", 41, 2, 43, 2))
sketch1.addConstraint(Sketcher.Constraint("Vertical", 39, 2, 45, 2))
sketch1.addConstraint(Sketcher.Constraint("Vertical", 38, 2, 46, 2))
sketch1.addConstraint(Sketcher.Constraint("Vertical", 35, 2, 49, 2))
sketch1.addConstraint(Sketcher.Constraint("Vertical", 32, 2, 52, 2))
sketch1.addConstraint(Sketcher.Constraint("Vertical", 30, 2, 54, 2))
sketch1.addConstraint(Sketcher.Constraint("Vertical", 28, 2, 56, 2))
sketch1.addConstraint(Sketcher.Constraint("Vertical", 27, 2, 57, 2))
sketch1.addConstraint(Sketcher.Constraint("Vertical", 26, 2, 58, 2))
sketch1.addConstraint(Sketcher.Constraint("Vertical", 24, 2, 60, 2))
sketch1.addConstraint(Sketcher.Constraint("Equal", 22, 25))
sketch1.addConstraint(Sketcher.Constraint("Equal", 25, 28))
sketch1.addConstraint(Sketcher.Constraint("Equal", 28, 31))
sketch1.addConstraint(Sketcher.Constraint("Equal", 19, 34))
sketch1.addConstraint(Sketcher.Constraint("Equal", 16, 37))
sketch1.addConstraint(Sketcher.Constraint("Equal", 14, 39))
sketch1.addConstraint(Sketcher.Constraint("Equal", 48, 0))
sketch1.addConstraint(Sketcher.Constraint("Equal", 51, 3))
sketch1.addConstraint(Sketcher.Constraint("Equal", 63, 6))
sketch1.addConstraint(Sketcher.Constraint("Equal", 6, 9))
sketch1.addConstraint(Sketcher.Constraint("Equal", 9, 12))
sketch1.addConstraint(Sketcher.Constraint("Equal", 12, 15))
sketch1.addConstraint(Sketcher.Constraint("Equal", 3, 18))
sketch1.addConstraint(Sketcher.Constraint("Equal", 0, 21))
sketch1.addConstraint(Sketcher.Constraint("Equal", 46, 23))
sketch1.addConstraint(Sketcher.Constraint("Equal", 30, 55))
sketch1.addConstraint(Sketcher.Constraint("Equal", 13, 24))
sketch1.addConstraint(Sketcher.Constraint("Equal", 11, 26))
sketch1.addConstraint(Sketcher.Constraint("Radius", 1, 0.5))
sketch1.addConstraint(Sketcher.Constraint("DistanceX", 22, 2, 22, 1, 3.0))
sketch1.addConstraint(Sketcher.Constraint("DistanceX", 2, 2, 2, 1, 10.5))
sketch1.addConstraint(Sketcher.Constraint("DistanceY", 1, 3, -1, 1, 30.0))
sketch1.addConstraint(Sketcher.Constraint("DistanceX", 5, 1, 5, 2, 1.75))
sketch1.addConstraint(Sketcher.Constraint("DistanceX", 7, 1, 7, 2, 2.25))
sketch1.addConstraint(Sketcher.Constraint("DistanceY", 8, 2, -1, 1, 18.5))
sketch1.addConstraint(Sketcher.Constraint("DistanceX", -1, 1, 8, 2, 8.25))
sketch1.setExpression("Constraints[191]", "Params.sketch1_radius")
sketch1.setExpression("Constraints[192]", "Params.sketch1_width")
sketch1.setExpression("Constraints[193]", "Params.sketch1_width2")
sketch1.setExpression("Constraints[195]", "Params.sketch1_width3")
sketch1.setExpression("Constraints[196]", "Params.sketch1_width4")
pad1 = body.newObject("PartDesign::Pad", "Pad")
pad1.Profile = sketch1
pad1.setExpression("Length", "Params.pad1_length")
pad1.Reversed = True
doc.recompute()

fillet = body.newObject("PartDesign::Fillet", "Fillet")
fillet.Base = (pad1, edges_at(pad1, [
    (30, 245, 0),
    (0, 245, 0),
    (0, 245, -30),
    (30, 245, -30),
]))
fillet.setExpression("Radius", "Params.fillet_radius")

sketch2 = body.newObject("Sketcher::SketchObject", "Sketch001")
sketch2.AttachmentSupport = (doc.getObject("XZ_Plane"), [""])
sketch2.MapMode = "FlatFace"
sketch2.AttachmentOffset = App.Placement(Vector(0, 0, -490), App.Rotation())
sketch2.addGeometry(Part.Circle(Vector(15, -15, 0), Vector(0, 0, 1), 2.5), False)
sketch2.addConstraint(Sketcher.Constraint("Diameter", 0, 5.0))
sketch2.addConstraint(Sketcher.Constraint("DistanceX", -1, 1, 0, 3, 15.0))
sketch2.addConstraint(Sketcher.Constraint("DistanceY", 0, 3, -1, 1, 15.0))
sketch2.setExpression("Constraints[0]", "Params.sketch2_diameter")
pocket1 = body.newObject("PartDesign::Pocket", "Pocket")
pocket1.Profile = sketch2
pocket1.Type = "ThroughAll"
pocket1.Reversed = True
doc.recompute()

fillet2 = body.newObject("PartDesign::Fillet", "Fillet001")
fillet2.Base = (pocket1, edges_at(pocket1, [
    (27.75, 245, -19),
    (27.75, 245, -22),
    (21.75, 245, -15.5),
    (21.75, 245, -14.5),
    (27.75, 245, -8),
    (27.75, 245, -11),
    (19, 245, -2.25),
    (22, 245, -2.25),
    (15.5, 245, -8.25),
    (14.5, 245, -8.25),
    (8, 245, -2.25),
    (11, 245, -2.25),
    (2.25, 245, -11),
    (2.25, 245, -8),
    (8.25, 245, -14.5),
    (8.25, 245, -15.5),
    (2.25, 245, -22),
    (2.25, 245, -19),
    (11, 245, -27.75),
    (8, 245, -27.75),
    (14.5, 245, -21.75),
    (15.5, 245, -21.75),
    (22, 245, -27.75),
    (19, 245, -27.75),
]))
fillet2.setExpression("Radius", "Params.fillet2_radius")

doc.recompute()
